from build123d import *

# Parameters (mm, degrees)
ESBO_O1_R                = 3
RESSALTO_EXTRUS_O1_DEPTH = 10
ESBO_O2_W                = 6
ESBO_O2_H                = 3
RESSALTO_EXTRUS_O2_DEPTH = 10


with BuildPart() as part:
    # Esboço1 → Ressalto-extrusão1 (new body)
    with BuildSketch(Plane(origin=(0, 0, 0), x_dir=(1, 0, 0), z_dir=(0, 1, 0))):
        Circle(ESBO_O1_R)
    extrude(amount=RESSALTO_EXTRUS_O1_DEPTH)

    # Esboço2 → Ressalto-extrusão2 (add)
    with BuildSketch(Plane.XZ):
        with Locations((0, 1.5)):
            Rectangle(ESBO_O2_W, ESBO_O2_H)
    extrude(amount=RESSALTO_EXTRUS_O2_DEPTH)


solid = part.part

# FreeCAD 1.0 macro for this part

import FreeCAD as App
import Part
import Sketcher

V = App.Vector
Q = App.Units.Quantity


def add_polygon(sketch, points):
    """Adds a closed chain of lines whose ends are joined by coincident constraints."""
    first, n = sketch.GeometryCount, len(points)
    for a, b in zip(points, points[1:] + points[:1]):
        sketch.addGeometry(Part.LineSegment(App.Vector(*a, 0), App.Vector(*b, 0)), False)
    for i in range(n):
        sketch.addConstraint(Sketcher.Constraint("Coincident", first + i, 2, first + (i + 1) % n, 1))

doc = App.newDocument("Part")
params = doc.addObject("Spreadsheet::Sheet", "Params")
for row, (alias, value) in enumerate([
    ("sketch1_diameter", "6 mm"),
    ("pad1_length", "10 mm"),
    ("sketch2_width", "6 mm"),
    ("sketch2_height", "3 mm"),
    ("pad2_length", "10 mm"),
], start=1):
    params.set(f"A{row}", alias)
    params.set(f"B{row}", "=" + value)
    params.setAlias(f"B{row}", alias)

body = doc.addObject("PartDesign::Body", "Body")

sketch1 = body.newObject("Sketcher::SketchObject", "Sketch")
sketch1.AttachmentSupport = (doc.getObject("XZ_Plane"), [""])
sketch1.MapMode = "FlatFace"
sketch1.addGeometry(Part.Circle(V(0, 0, 0), V(0, 0, 1), 3), False)
sketch1.addConstraint([
    Sketcher.Constraint("Coincident", 0, 3, -1, 1),
    Sketcher.Constraint("Diameter", 0, Q("6 mm")),
])
sketch1.setExpression("Constraints[1]", "Params.sketch1_diameter")
pad1 = body.newObject("PartDesign::Pad", "Pad")
pad1.Profile = sketch1
pad1.setExpression("Length", "Params.pad1_length")
pad1.Reversed = True

sketch2 = body.newObject("Sketcher::SketchObject", "Sketch001")
sketch2.AttachmentSupport = (doc.getObject("XZ_Plane"), [""])
sketch2.MapMode = "FlatFace"
add_polygon(sketch2, [(-3, 3), (-3, 0), (3, 0), (3, 3)])
sketch2.addConstraint([
    Sketcher.Constraint("Vertical", 0),
    Sketcher.Constraint("Horizontal", 1),
    Sketcher.Constraint("Vertical", 2),
    Sketcher.Constraint("Horizontal", 3),
    Sketcher.Constraint("Symmetric", 0, 2, 1, 2, -1, 1),
    Sketcher.Constraint("DistanceX", 1, 1, 1, 2, Q("6 mm")),
    Sketcher.Constraint("DistanceY", 0, 2, 0, 1, Q("3 mm")),
])
sketch2.setExpression("Constraints[9]", "Params.sketch2_width")
sketch2.setExpression("Constraints[10]", "Params.sketch2_height")
pad2 = body.newObject("PartDesign::Pad", "Pad001")
pad2.Profile = sketch2
pad2.setExpression("Length", "Params.pad2_length")

doc.recompute()
